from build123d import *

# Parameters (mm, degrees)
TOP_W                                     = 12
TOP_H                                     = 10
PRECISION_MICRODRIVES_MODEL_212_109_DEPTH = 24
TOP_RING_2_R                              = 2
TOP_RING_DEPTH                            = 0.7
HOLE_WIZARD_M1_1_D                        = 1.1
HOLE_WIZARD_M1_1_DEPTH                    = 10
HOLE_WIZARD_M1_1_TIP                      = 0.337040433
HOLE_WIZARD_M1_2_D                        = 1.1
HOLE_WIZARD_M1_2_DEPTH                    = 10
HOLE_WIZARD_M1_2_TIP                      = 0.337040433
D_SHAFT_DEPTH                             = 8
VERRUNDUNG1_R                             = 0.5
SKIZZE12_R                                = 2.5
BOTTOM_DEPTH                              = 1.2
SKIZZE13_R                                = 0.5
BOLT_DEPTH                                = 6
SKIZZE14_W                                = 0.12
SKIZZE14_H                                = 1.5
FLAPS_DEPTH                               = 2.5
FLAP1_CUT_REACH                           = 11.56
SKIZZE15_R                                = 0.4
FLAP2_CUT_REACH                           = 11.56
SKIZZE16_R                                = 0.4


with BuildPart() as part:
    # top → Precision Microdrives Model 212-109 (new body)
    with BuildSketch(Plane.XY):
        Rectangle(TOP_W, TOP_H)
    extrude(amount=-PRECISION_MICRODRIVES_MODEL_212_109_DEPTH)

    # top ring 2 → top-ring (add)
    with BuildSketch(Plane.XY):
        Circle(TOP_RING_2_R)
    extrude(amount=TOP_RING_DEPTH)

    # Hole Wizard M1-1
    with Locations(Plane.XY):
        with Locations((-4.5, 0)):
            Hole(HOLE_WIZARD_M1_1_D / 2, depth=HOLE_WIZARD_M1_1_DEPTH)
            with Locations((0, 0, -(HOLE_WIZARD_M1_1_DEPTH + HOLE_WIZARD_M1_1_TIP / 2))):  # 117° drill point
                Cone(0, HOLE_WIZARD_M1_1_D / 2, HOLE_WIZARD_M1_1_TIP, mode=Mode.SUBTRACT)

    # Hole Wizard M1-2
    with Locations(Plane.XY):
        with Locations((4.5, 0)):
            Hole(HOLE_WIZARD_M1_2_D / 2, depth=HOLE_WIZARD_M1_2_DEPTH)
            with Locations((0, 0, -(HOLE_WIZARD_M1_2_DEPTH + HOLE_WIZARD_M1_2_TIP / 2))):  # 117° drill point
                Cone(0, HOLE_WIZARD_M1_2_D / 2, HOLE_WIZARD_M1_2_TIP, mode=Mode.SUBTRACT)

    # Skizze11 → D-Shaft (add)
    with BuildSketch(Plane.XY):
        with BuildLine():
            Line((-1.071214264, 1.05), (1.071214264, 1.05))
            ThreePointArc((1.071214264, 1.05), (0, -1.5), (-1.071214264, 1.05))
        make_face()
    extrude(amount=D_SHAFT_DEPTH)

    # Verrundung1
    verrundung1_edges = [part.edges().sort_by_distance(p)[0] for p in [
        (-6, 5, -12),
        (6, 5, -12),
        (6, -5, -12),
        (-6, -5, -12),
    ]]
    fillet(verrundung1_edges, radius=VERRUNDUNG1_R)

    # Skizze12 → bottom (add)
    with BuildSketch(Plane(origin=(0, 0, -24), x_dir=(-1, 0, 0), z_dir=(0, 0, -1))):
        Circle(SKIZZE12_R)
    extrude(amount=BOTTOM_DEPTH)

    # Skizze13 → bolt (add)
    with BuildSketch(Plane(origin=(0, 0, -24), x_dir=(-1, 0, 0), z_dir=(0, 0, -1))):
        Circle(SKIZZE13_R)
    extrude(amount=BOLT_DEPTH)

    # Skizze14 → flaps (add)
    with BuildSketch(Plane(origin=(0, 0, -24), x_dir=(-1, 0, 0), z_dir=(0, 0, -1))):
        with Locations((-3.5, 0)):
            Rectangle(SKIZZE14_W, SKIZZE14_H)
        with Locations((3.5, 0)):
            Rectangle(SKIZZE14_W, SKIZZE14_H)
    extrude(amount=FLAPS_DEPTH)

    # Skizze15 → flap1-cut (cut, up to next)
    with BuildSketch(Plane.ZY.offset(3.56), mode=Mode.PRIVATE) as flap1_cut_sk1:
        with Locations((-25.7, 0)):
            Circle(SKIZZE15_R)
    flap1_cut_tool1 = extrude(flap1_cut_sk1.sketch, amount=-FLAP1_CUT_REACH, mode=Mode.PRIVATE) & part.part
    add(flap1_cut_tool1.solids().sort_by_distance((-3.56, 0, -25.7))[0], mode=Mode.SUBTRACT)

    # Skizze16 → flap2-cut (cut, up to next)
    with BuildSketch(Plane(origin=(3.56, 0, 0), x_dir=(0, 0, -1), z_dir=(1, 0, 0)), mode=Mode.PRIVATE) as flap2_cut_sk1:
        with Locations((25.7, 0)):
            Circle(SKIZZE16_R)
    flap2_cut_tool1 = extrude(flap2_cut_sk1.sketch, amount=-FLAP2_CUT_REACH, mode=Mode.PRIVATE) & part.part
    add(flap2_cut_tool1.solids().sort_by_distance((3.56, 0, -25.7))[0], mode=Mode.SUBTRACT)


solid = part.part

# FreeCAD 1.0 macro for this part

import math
import FreeCAD as App
import Part
import Sketcher
from FreeCAD import Vector


def edges_at(feature, points):
    """Names of the edges that pass closest to the given points."""
    edges = feature.Shape.Edges
    near = lambda p: min(range(len(edges)), key=lambda i: edges[i].distToShape(Part.Vertex(*p))[0])
    return sorted({f"Edge{near(p) + 1}" for p in points})


def add_polygon(sketch, points):
    """Adds a closed chain of lines whose ends are joined by coincident constraints."""
    first, n = sketch.GeometryCount, len(points)
    for a, b in zip(points, points[1:] + points[:1]):
        sketch.addGeometry(Part.LineSegment(App.Vector(*a, 0), App.Vector(*b, 0)), False)
    for i in range(n):
        sketch.addConstraint(Sketcher.Constraint("Coincident", first + i, 2, first + (i + 1) % n, 1))

doc = App.newDocument("Part")
body = doc.addObject("PartDesign::Body", "Body")

# Sketch on XY plane
sketch1 = body.newObject("Sketcher::SketchObject", "Sketch")
sketch1.AttachmentSupport = (doc.getObject("XY_Plane"), [""])
sketch1.MapMode = "FlatFace"
add_polygon(sketch1, [(-6, 5), (-6, -5), (6, -5), (6, 5)])  # lines 0-3
sketch1.addConstraint(Sketcher.Constraint("Vertical", 0))
sketch1.addConstraint(Sketcher.Constraint("Horizontal", 1))
sketch1.addConstraint(Sketcher.Constraint("Vertical", 2))
sketch1.addConstraint(Sketcher.Constraint("Horizontal", 3))
sketch1.addConstraint(Sketcher.Constraint("Symmetric", 0, 2, 2, 2, -1, 1))
sketch1.addConstraint(Sketcher.Constraint("DistanceX", 1, 1, 1, 2, 12.0))
sketch1.addConstraint(Sketcher.Constraint("DistanceY", 0, 2, 0, 1, 10.0))
pad1 = body.newObject("PartDesign::Pad", "Pad")
pad1.Profile = sketch1
pad1.Length = 24
pad1.Reversed = True

# Sketch on XY plane
sketch2 = body.newObject("Sketcher::SketchObject", "Sketch001")
sketch2.AttachmentSupport = (doc.getObject("XY_Plane"), [""])
sketch2.MapMode = "FlatFace"
sketch2.addGeometry(Part.Circle(Vector(0, 0, 0), Vector(0, 0, 1), 2), False)
sketch2.addConstraint(Sketcher.Constraint("Coincident", 0, 3, -1, 1))
sketch2.addConstraint(Sketcher.Constraint("Diameter", 0, 4.0))
pad2 = body.newObject("PartDesign::Pad", "Pad001")
pad2.Profile = sketch2
pad2.Length = 0.7

# Sketch on XY plane
sketch3 = body.newObject("Sketcher::SketchObject", "Sketch002")
sketch3.AttachmentSupport = (doc.getObject("XY_Plane"), [""])
sketch3.MapMode = "FlatFace"
sketch3.addGeometry(Part.Circle(Vector(-4.5, 0, 0), Vector(0, 0, 1), 0.55), False)
sketch3.addConstraint(Sketcher.Constraint("PointOnObject", 0, 3, -1))
sketch3.addConstraint(Sketcher.Constraint("Diameter", 0, 1.1))
sketch3.addConstraint(Sketcher.Constraint("DistanceX", 0, 3, -1, 1, 4.5))
doc.recompute()
hole = body.newObject("PartDesign::Hole", "Hole")
hole.Profile = sketch3
hole.ThreadType = "None"
hole.Diameter = 1.1
hole.DepthType = "Dimension"
hole.Depth = 10
hole.DrillPoint = "Angled"
hole.DrillPointAngle = 117

# Sketch on XY plane
sketch4 = body.newObject("Sketcher::SketchObject", "Sketch003")
sketch4.AttachmentSupport = (doc.getObject("XY_Plane"), [""])
sketch4.MapMode = "FlatFace"
sketch4.addGeometry(Part.Circle(Vector(4.5, 0, 0), Vector(0, 0, 1), 0.55), False)
sketch4.addConstraint(Sketcher.Constraint("PointOnObject", 0, 3, -1))
sketch4.addConstraint(Sketcher.Constraint("Diameter", 0, 1.1))
sketch4.addConstraint(Sketcher.Constraint("DistanceX", -1, 1, 0, 3, 4.5))
doc.recompute()
hole2 = body.newObject("PartDesign::Hole", "Hole001")
hole2.Profile = sketch4
hole2.ThreadType = "None"
hole2.Diameter = 1.1
hole2.DepthType = "Dimension"
hole2.Depth = 10
hole2.DrillPoint = "Angled"
hole2.DrillPointAngle = 117

# Sketch on XY plane
sketch5 = body.newObject("Sketcher::SketchObject", "Sketch004")
sketch5.AttachmentSupport = (doc.getObject("XY_Plane"), [""])
sketch5.MapMode = "FlatFace"
sketch5.addGeometry(Part.LineSegment(Vector(1.071214, 1.05, 0), Vector(-1.071214, 1.05, 0)), False)
sketch5.addGeometry(Part.ArcOfCircle(Part.Circle(Vector(0, 0, 0), Vector(0, 0, 1), 1.5), math.radians(135.572996), math.radians(404.427004)), False)
sketch5.addConstraint(Sketcher.Constraint("Coincident", 0, 1, 1, 2))
sketch5.addConstraint(Sketcher.Constraint("Coincident", 1, 1, 0, 2))
sketch5.addConstraint(Sketcher.Constraint("Horizontal", 0))
sketch5.addConstraint(Sketcher.Constraint("Coincident", 1, 3, -1, 1))
sketch5.addConstraint(Sketcher.Constraint("Radius", 1, 1.5))
sketch5.addConstraint(Sketcher.Constraint("DistanceY", -1, 1, 0, 1, 1.05))
pad3 = body.newObject("PartDesign::Pad", "Pad002")
pad3.Profile = sketch5
pad3.Length = 8
doc.recompute()

fillet = body.newObject("PartDesign::Fillet", "Fillet")
fillet.Base = (pad3, edges_at(pad3, [
    (-6, 5, -12),
    (6, 5, -12),
    (6, -5, -12),
    (-6, -5, -12),
]))
fillet.Radius = 0.5

# Sketch on XY plane
sketch6 = body.newObject("Sketcher::SketchObject", "Sketch005")
sketch6.AttachmentSupport = (doc.getObject("XY_Plane"), [""])
sketch6.MapMode = "FlatFace"
sketch6.AttachmentOffset = App.Placement(Vector(0, 0, -24), App.Rotation())
sketch6.addGeometry(Part.Circle(Vector(0, 0, 0), Vector(0, 0, 1), 2.5), False)
sketch6.addConstraint(Sketcher.Constraint("Coincident", 0, 3, -1, 1))
sketch6.addConstraint(Sketcher.Constraint("Diameter", 0, 5.0))
pad4 = body.newObject("PartDesign::Pad", "Pad003")
pad4.Profile = sketch6
pad4.Length = 1.2
pad4.Reversed = True

# Sketch on XY plane
sketch7 = body.newObject("Sketcher::SketchObject", "Sketch006")
sketch7.AttachmentSupport = (doc.getObject("XY_Plane"), [""])
sketch7.MapMode = "FlatFace"
sketch7.AttachmentOffset = App.Placement(Vector(0, 0, -24), App.Rotation())
sketch7.addGeometry(Part.Circle(Vector(0, 0, 0), Vector(0, 0, 1), 0.5), False)
sketch7.addConstraint(Sketcher.Constraint("Coincident", 0, 3, -1, 1))
sketch7.addConstraint(Sketcher.Constraint("Diameter", 0, 1.0))
pad5 = body.newObject("PartDesign::Pad", "Pad004")
pad5.Profile = sketch7
pad5.Length = 6
pad5.Reversed = True

# Sketch on XY plane
sketch8 = body.newObject("Sketcher::SketchObject", "Sketch007")
sketch8.AttachmentSupport = (doc.getObject("XY_Plane"), [""])
sketch8.MapMode = "FlatFace"
sketch8.AttachmentOffset = App.Placement(Vector(0, 0, -24), App.Rotation())
add_polygon(sketch8, [(3.56, 0.75), (3.56, -0.75), (3.44, -0.75), (3.44, 0.75)])  # lines 0-3
add_polygon(sketch8, [(-3.44, 0.75), (-3.44, -0.75), (-3.56, -0.75), (-3.56, 0.75)])  # lines 4-7
sketch8.addConstraint(Sketcher.Constraint("Vertical", 0))
sketch8.addConstraint(Sketcher.Constraint("Horizontal", 1))
sketch8.addConstraint(Sketcher.Constraint("Vertical", 2))
sketch8.addConstraint(Sketcher.Constraint("Horizontal", 3))
sketch8.addConstraint(Sketcher.Constraint("Vertical", 4))
sketch8.addConstraint(Sketcher.Constraint("Horizontal", 5))
sketch8.addConstraint(Sketcher.Constraint("Vertical", 6))
sketch8.addConstraint(Sketcher.Constraint("Horizontal", 7))
sketch8.addConstraint(Sketcher.Constraint("Symmetric", 2, 2, 4, 2, -1, 1))
sketch8.addConstraint(Sketcher.Constraint("Symmetric", 0, 2, 6, 2, -1, 1))
sketch8.addConstraint(Sketcher.Constraint("Horizontal", 1, 2, 4, 2))
sketch8.addConstraint(Sketcher.Constraint("DistanceY", 0, 2, 0, 1, 1.5))
sketch8.addConstraint(Sketcher.Constraint("DistanceX", 4, 2, 0, 2, 7.0))
sketch8.addConstraint(Sketcher.Constraint("DistanceX", 1, 2, 1, 1, 0.12))
pad6 = body.newObject("PartDesign::Pad", "Pad005")
pad6.Profile = sketch8
pad6.Length = 2.5
pad6.Reversed = True

# Sketch on YZ plane
sketch9 = body.newObject("Sketcher::SketchObject", "Sketch008")
sketch9.AttachmentSupport = (doc.getObject("YZ_Plane"), [""])
sketch9.MapMode = "FlatFace"
sketch9.AttachmentOffset = App.Placement(Vector(0, 0, -3.56), App.Rotation())
sketch9.addGeometry(Part.Circle(Vector(0, -25.7, 0), Vector(0, 0, 1), 0.4), False)
sketch9.addConstraint(Sketcher.Constraint("PointOnObject", 0, 3, -2))
sketch9.addConstraint(Sketcher.Constraint("Diameter", 0, 0.8))
sketch9.addConstraint(Sketcher.Constraint("DistanceY", 0, 3, -1, 1, 25.7))
pocket1 = body.newObject("PartDesign::Pocket", "Pocket")
pocket1.Profile = sketch9
pocket1.Type = "UpToFirst"
pocket1.Reversed = True

# Sketch on YZ plane
sketch10 = body.newObject("Sketcher::SketchObject", "Sketch009")
sketch10.AttachmentSupport = (doc.getObject("YZ_Plane"), [""])
sketch10.MapMode = "FlatFace"
sketch10.AttachmentOffset = App.Placement(Vector(0, 0, 3.56), App.Rotation())
sketch10.addGeometry(Part.Circle(Vector(0, -25.7, 0), Vector(0, 0, 1), 0.4), False)
sketch10.addConstraint(Sketcher.Constraint("PointOnObject", 0, 3, -2))
sketch10.addConstraint(Sketcher.Constraint("Diameter", 0, 0.8))
sketch10.addConstraint(Sketcher.Constraint("DistanceY", 0, 3, -1, 1, 25.7))
pocket2 = body.newObject("PartDesign::Pocket", "Pocket001")
pocket2.Profile = sketch10
pocket2.Type = "UpToFirst"

doc.recompute()
